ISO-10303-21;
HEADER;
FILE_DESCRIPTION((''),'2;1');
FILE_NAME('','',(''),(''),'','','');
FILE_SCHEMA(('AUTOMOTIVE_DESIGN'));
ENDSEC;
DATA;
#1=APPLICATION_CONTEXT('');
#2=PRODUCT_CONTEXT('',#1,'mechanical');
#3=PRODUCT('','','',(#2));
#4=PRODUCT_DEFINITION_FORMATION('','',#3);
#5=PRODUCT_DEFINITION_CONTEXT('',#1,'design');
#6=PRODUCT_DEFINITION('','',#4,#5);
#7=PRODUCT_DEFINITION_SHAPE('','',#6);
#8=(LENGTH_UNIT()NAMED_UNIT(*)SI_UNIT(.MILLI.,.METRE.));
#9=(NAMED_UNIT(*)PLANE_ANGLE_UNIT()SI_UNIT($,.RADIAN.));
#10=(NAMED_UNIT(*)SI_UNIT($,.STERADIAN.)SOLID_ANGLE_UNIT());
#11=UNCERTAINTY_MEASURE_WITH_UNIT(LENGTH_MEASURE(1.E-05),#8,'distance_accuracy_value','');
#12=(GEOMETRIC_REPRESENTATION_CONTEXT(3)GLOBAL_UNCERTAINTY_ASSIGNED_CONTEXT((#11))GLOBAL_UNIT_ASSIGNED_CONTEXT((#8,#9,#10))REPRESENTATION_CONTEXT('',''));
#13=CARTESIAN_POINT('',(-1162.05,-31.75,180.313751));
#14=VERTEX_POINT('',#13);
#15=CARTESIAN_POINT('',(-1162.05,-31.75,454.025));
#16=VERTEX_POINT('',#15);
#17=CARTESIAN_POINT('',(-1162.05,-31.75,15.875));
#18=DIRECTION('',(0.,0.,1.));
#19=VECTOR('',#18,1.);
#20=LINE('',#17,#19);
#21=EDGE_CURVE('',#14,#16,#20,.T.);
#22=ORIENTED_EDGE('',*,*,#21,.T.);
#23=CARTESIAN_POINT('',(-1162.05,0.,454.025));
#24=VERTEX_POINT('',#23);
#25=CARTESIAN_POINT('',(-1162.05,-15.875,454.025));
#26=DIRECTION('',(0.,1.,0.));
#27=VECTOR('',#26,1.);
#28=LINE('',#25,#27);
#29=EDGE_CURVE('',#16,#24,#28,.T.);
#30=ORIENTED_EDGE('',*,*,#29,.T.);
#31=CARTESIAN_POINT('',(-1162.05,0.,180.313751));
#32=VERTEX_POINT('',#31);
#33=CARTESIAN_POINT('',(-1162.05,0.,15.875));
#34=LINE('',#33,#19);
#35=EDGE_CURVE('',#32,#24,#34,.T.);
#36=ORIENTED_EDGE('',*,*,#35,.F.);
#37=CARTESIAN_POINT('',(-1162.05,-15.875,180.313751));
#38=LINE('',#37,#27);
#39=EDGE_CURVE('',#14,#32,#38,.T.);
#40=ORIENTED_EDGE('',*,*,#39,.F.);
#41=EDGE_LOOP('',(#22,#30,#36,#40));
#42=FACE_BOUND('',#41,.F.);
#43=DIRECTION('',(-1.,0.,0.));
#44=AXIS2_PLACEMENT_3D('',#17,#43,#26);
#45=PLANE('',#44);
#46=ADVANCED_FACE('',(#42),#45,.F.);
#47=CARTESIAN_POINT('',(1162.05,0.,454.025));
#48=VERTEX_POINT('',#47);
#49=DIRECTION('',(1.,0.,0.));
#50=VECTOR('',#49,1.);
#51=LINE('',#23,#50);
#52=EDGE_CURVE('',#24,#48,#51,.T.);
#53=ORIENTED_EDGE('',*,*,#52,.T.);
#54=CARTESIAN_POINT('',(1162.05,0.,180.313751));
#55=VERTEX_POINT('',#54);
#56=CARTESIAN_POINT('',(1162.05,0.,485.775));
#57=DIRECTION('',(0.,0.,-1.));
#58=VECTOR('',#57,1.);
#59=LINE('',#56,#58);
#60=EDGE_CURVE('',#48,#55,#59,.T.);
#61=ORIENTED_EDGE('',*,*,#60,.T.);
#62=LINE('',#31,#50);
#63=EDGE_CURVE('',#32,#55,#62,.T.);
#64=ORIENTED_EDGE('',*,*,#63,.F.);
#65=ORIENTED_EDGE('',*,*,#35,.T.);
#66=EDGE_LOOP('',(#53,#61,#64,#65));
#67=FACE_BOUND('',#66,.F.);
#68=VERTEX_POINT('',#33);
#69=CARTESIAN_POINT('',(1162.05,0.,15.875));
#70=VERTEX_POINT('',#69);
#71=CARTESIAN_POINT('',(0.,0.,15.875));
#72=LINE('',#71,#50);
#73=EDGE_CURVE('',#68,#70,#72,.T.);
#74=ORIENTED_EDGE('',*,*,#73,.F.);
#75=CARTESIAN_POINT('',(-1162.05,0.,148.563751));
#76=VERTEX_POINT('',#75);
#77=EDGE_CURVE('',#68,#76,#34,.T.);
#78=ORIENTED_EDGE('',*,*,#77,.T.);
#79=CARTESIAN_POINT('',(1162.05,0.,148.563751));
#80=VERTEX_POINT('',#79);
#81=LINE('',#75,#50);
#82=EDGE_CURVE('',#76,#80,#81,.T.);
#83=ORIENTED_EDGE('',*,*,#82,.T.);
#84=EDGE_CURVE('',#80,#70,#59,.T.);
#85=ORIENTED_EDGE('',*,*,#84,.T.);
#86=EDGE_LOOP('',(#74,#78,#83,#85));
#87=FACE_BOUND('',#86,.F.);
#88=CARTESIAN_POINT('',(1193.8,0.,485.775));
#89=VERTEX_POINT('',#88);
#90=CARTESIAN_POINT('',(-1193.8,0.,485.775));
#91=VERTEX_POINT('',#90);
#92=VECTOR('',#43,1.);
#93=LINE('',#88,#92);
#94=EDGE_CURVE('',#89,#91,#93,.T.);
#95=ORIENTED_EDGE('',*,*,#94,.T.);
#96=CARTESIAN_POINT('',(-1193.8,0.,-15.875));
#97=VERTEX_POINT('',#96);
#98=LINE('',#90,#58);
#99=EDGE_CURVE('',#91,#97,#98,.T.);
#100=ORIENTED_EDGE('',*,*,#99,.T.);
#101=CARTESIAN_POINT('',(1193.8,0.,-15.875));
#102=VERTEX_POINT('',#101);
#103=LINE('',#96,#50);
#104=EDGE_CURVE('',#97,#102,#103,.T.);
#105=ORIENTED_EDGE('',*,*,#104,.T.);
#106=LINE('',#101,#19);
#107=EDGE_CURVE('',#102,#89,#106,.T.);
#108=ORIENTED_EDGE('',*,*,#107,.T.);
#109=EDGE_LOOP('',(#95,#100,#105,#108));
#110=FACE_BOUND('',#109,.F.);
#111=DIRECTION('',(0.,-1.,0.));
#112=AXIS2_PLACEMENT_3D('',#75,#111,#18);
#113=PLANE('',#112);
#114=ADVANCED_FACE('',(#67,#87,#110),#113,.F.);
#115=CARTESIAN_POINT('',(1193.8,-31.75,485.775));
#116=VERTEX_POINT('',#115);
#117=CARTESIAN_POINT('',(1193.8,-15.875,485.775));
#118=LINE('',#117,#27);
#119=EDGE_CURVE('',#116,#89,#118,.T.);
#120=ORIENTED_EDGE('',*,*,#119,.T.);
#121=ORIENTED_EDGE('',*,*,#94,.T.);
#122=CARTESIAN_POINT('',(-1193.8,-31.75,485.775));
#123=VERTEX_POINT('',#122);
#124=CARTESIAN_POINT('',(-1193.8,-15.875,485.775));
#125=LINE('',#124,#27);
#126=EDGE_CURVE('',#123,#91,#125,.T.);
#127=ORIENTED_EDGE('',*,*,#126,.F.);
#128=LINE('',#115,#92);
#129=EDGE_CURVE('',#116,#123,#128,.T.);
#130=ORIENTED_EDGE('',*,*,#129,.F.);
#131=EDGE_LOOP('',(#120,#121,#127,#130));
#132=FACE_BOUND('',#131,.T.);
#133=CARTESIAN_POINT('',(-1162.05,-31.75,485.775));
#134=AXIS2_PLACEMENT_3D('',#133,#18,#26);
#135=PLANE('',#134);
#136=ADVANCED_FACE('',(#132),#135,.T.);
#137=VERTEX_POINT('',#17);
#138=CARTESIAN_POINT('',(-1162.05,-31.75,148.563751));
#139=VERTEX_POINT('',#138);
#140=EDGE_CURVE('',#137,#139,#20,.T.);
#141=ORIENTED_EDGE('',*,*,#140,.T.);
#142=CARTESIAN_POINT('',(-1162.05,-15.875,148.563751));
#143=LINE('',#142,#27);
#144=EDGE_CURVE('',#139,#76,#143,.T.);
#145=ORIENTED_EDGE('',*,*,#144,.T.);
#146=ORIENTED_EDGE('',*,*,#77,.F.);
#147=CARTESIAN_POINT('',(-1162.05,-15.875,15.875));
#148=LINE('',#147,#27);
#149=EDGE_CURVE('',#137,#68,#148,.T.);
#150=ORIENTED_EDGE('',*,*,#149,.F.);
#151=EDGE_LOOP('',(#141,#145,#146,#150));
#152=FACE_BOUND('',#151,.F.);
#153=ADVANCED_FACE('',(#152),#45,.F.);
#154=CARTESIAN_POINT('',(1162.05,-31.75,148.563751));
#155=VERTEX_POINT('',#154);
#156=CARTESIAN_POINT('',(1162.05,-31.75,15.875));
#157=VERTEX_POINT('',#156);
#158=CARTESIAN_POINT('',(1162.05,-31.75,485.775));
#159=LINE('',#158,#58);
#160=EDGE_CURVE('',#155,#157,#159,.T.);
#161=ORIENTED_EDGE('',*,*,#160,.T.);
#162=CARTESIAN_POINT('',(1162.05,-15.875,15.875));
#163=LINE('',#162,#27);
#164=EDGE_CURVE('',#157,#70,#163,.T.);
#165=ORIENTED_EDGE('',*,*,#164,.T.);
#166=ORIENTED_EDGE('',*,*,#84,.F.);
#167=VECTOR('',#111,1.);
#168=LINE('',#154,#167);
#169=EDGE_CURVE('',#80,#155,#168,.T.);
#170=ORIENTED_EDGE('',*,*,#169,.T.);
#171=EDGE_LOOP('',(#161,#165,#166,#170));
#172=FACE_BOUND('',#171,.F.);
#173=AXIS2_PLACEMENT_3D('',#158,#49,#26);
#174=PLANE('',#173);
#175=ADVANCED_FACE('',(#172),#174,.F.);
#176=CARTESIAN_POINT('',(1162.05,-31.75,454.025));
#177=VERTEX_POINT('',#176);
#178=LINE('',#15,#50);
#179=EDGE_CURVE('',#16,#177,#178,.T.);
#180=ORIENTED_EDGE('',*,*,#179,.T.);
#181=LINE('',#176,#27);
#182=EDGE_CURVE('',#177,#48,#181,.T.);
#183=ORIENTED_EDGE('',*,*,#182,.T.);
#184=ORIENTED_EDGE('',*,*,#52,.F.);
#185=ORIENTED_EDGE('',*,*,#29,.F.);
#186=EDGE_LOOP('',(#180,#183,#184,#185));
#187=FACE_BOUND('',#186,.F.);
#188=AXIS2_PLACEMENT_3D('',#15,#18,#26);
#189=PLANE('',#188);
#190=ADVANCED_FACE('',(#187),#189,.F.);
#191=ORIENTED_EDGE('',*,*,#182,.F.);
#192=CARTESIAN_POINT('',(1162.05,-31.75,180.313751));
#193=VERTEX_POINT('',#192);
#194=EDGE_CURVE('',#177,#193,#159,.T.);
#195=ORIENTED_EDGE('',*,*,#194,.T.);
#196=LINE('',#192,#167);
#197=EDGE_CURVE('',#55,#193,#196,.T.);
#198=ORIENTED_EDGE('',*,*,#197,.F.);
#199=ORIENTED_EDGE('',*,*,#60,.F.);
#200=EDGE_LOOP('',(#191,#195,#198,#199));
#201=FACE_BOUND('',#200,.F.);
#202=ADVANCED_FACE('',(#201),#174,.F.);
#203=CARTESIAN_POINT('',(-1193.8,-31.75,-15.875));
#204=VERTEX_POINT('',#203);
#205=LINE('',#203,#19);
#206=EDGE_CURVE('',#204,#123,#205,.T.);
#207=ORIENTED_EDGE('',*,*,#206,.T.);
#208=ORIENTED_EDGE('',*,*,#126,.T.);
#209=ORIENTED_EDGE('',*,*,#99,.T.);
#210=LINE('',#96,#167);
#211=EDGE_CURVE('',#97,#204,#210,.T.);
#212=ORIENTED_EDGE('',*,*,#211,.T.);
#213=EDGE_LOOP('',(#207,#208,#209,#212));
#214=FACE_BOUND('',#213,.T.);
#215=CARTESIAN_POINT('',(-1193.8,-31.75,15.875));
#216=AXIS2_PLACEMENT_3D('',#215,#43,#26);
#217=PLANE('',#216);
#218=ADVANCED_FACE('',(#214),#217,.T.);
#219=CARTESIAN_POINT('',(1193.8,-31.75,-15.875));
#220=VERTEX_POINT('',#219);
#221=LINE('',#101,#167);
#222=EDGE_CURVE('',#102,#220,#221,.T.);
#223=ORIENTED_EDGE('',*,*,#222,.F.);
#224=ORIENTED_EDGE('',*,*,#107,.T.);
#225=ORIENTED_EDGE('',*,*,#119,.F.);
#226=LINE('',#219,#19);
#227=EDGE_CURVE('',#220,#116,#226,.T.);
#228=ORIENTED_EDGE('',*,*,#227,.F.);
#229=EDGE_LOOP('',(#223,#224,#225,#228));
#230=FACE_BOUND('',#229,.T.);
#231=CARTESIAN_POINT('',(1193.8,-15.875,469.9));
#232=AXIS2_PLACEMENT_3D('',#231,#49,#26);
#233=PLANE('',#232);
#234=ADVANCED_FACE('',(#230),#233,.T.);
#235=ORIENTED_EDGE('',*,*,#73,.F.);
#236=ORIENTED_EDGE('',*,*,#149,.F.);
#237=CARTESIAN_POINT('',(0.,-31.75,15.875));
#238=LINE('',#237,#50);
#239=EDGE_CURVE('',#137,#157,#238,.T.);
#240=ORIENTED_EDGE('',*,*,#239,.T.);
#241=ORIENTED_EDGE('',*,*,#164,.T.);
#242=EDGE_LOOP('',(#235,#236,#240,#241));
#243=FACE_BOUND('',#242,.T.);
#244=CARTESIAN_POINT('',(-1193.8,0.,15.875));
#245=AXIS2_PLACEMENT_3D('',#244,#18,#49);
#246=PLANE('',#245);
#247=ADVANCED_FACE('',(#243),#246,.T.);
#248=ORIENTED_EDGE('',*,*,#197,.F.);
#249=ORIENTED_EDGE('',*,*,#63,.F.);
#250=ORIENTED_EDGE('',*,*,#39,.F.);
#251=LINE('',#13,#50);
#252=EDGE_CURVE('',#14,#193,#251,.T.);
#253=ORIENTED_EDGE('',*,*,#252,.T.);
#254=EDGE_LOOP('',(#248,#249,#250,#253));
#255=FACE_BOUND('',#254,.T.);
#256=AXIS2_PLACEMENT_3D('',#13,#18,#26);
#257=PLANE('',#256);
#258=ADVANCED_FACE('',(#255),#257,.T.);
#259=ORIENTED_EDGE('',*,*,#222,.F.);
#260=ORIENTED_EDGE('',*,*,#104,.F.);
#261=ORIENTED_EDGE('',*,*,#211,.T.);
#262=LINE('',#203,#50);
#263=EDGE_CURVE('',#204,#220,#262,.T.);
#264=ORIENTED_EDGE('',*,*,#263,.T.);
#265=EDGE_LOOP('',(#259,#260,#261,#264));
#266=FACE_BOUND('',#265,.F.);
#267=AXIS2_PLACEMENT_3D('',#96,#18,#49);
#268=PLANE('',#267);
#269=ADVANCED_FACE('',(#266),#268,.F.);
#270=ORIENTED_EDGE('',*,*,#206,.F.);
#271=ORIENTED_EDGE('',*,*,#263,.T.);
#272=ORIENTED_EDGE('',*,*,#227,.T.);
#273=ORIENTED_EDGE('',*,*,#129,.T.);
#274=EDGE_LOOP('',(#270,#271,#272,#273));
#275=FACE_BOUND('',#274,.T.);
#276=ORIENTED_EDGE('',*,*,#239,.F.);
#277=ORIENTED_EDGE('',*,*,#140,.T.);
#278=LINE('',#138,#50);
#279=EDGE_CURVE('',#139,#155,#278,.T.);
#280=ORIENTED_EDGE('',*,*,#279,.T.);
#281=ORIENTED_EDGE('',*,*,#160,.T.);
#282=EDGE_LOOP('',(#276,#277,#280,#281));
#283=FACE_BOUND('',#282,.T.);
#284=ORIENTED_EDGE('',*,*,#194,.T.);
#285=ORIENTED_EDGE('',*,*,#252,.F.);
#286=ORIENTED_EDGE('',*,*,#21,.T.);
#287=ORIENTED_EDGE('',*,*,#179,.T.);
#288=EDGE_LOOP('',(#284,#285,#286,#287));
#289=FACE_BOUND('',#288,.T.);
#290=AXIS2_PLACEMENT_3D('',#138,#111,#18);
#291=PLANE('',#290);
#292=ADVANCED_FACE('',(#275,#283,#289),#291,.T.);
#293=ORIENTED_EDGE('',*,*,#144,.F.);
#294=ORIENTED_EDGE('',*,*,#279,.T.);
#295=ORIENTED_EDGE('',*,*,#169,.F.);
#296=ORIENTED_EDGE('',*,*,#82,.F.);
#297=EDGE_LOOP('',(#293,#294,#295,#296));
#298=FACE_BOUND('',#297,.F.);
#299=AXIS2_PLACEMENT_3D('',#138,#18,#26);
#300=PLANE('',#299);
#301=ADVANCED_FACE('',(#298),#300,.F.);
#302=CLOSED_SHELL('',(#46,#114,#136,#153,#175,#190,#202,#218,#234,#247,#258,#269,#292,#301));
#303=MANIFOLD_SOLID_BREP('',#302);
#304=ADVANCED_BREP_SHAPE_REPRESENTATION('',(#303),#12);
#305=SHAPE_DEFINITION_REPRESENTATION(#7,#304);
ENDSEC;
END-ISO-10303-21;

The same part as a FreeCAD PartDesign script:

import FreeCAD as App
import Part
import Sketcher

V = App.Vector
Q = App.Units.Quantity

doc = App.newDocument("Part")
body = doc.addObject("PartDesign::Body", "Body")

# Sketch on XZ plane
sketch1 = doc.addObject("Sketcher::SketchObject", "Sketch")
body.addObject(sketch1)
sketch1.AttachmentSupport = (doc.XZ_Plane, [""])
sketch1.MapMode = "FlatFace"
sketch1.addGeometry([
    Part.LineSegment(V(-1194, 16, 0), V(-1194, -16, 0)),
    Part.LineSegment(V(-1194, -16, 0), V(1194, -16, 0)),
    Part.LineSegment(V(1194, -16, 0), V(1194, 16, 0)),
    Part.LineSegment(V(1194, 16, 0), V(-1194, 16, 0)),
], False)
sketch1.addConstraint([
    Sketcher.Constraint("Coincident", 0, 2, 1, 1),
    Sketcher.Constraint("Coincident", 1, 2, 2, 1),
    Sketcher.Constraint("Coincident", 2, 2, 3, 1),
    Sketcher.Constraint("Coincident", 3, 2, 0, 1),
    Sketcher.Constraint("Vertical", 0),
    Sketcher.Constraint("Horizontal", 1),
    Sketcher.Constraint("Vertical", 2),
    Sketcher.Constraint("Horizontal", 3),
    Sketcher.Constraint("Symmetric", 0, 2, 2, 2, -1, 1),
    Sketcher.Constraint("DistanceX", 1, 1, 1, 2, Q("94 in")),
    Sketcher.Constraint("DistanceY", 0, 2, 0, 1, Q("1.25 in")),
])
pad1 = doc.addObject("PartDesign::Pad", "Pad")
body.addObject(pad1)
pad1.Profile = sketch1
pad1.Length = Q("1.25 in")

# Sketch on XY plane
sketch2 = doc.addObject("Sketcher::SketchObject", "Sketch001")
body.addObject(sketch2)
sketch2.AttachmentSupport = (doc.XY_Plane, [""])
sketch2.MapMode = "FlatFace"
sketch2.AttachmentOffset = App.Placement(V(0, 0, 0.625 * 25.4), App.Rotation())
sketch2.addGeometry([
    Part.LineSegment(V(-1194, 0, 0), V(-1194, -32, 0)),
    Part.LineSegment(V(-1194, -32, 0), V(-1162, -32, 0)),
    Part.LineSegment(V(-1162, -32, 0), V(-1162, 0, 0)),
    Part.LineSegment(V(-1162, 0, 0), V(-1194, 0, 0)),
], False)
sketch2.addConstraint([
    Sketcher.Constraint("Coincident", 0, 2, 1, 1),
    Sketcher.Constraint("Coincident", 1, 2, 2, 1),
    Sketcher.Constraint("Coincident", 2, 2, 3, 1),
    Sketcher.Constraint("Coincident", 3, 2, 0, 1),
    Sketcher.Constraint("Vertical", 0),
    Sketcher.Constraint("Horizontal", 1),
    Sketcher.Constraint("Vertical", 2),
    Sketcher.Constraint("Horizontal", 3),
    Sketcher.Constraint("PointOnObject", 2, 2, -1),
    Sketcher.Constraint("Equal", 3, 0),
    Sketcher.Constraint("DistanceX", 0, 2, -1, 1, Q("47 in")),
    Sketcher.Constraint("DistanceX", 1, 1, 1, 2, Q("1.25 in")),
])
pad2 = doc.addObject("PartDesign::Pad", "Pad001")
body.addObject(pad2)
pad2.Profile = sketch2
pad2.Length = Q("18.5 in")

# Sketch on YZ plane
sketch3 = doc.addObject("Sketcher::SketchObject", "Sketch002")
body.addObject(sketch3)
sketch3.AttachmentSupport = (doc.YZ_Plane, [""])
sketch3.MapMode = "FlatFace"
sketch3.AttachmentOffset = App.Placement(V(0, 0, -45.75 * 25.4), App.Rotation())
sketch3.addGeometry([
    Part.LineSegment(V(-32, 486, 0), V(-32, 454, 0)),
    Part.LineSegment(V(-32, 454, 0), V(0, 454, 0)),
    Part.LineSegment(V(0, 454, 0), V(0, 486, 0)),
    Part.LineSegment(V(0, 486, 0), V(-32, 486, 0)),
], False)
sketch3.addConstraint([
    Sketcher.Constraint("Coincident", 0, 2, 1, 1),
    Sketcher.Constraint("Coincident", 1, 2, 2, 1),
    Sketcher.Constraint("Coincident", 2, 2, 3, 1),
    Sketcher.Constraint("Coincident", 3, 2, 0, 1),
    Sketcher.Constraint("Vertical", 0),
    Sketcher.Constraint("Horizontal", 1),
    Sketcher.Constraint("Vertical", 2),
    Sketcher.Constraint("Horizontal", 3),
    Sketcher.Constraint("PointOnObject", 1, 2, -2),
    Sketcher.Constraint("Equal", 3, 0),
    Sketcher.Constraint("DistanceX", 1, 1, 1, 2, Q("1.25 in")),
    Sketcher.Constraint("DistanceY", -1, 1, 0, 2, Q("17.875 in")),
])
pad3 = doc.addObject("PartDesign::Pad", "Pad002")
body.addObject(pad3)
pad3.Profile = sketch3
pad3.Length = Q("92.75 in")

# Sketch on XY plane
sketch4 = doc.addObject("Sketcher::SketchObject", "Sketch003")
body.addObject(sketch4)
sketch4.AttachmentSupport = (doc.XY_Plane, [""])
sketch4.MapMode = "FlatFace"
sketch4.AttachmentOffset = App.Placement(V(0, 0, 19.125 * 25.4), App.Rotation())
sketch4.addGeometry([
    Part.LineSegment(V(1162, 0, 0), V(1162, -32, 0)),
    Part.LineSegment(V(1162, -32, 0), V(1194, -32, 0)),
    Part.LineSegment(V(1194, -32, 0), V(1194, 0, 0)),
    Part.LineSegment(V(1194, 0, 0), V(1162, 0, 0)),
], False)
sketch4.addConstraint([
    Sketcher.Constraint("Coincident", 0, 2, 1, 1),
    Sketcher.Constraint("Coincident", 1, 2, 2, 1),
    Sketcher.Constraint("Coincident", 2, 2, 3, 1),
    Sketcher.Constraint("Coincident", 3, 2, 0, 1),
    Sketcher.Constraint("Vertical", 0),
    Sketcher.Constraint("Horizontal", 1),
    Sketcher.Constraint("Vertical", 2),
    Sketcher.Constraint("Horizontal", 3),
    Sketcher.Constraint("PointOnObject", 2, 2, -1),
    Sketcher.Constraint("Equal", 3, 0),
    Sketcher.Constraint("DistanceX", -1, 1, 1, 2, Q("47 in")),
    Sketcher.Constraint("DistanceX", 1, 1, 1, 2, Q("1.25 in")),
])
pad4 = doc.addObject("PartDesign::Pad", "Pad003")
body.addObject(pad4)
pad4.Profile = sketch4
pad4.Length = Q("19.75 in")
pad4.Reversed = True

# Sketch on YZ plane
sketch5 = doc.addObject("Sketcher::SketchObject", "Sketch004")
body.addObject(sketch5)
sketch5.AttachmentSupport = (doc.YZ_Plane, [""])
sketch5.MapMode = "FlatFace"
sketch5.AttachmentOffset = App.Placement(V(0, 0, -45.75 * 25.4), App.Rotation())
sketch5.addGeometry([
    Part.LineSegment(V(-32, 180, 0), V(-32, 149, 0)),
    Part.LineSegment(V(-32, 149, 0), V(0, 149, 0)),
    Part.LineSegment(V(0, 149, 0), V(0, 180, 0)),
    Part.LineSegment(V(0, 180, 0), V(-32, 180, 0)),
], False)
sketch5.addConstraint([
    Sketcher.Constraint("Coincident", 0, 2, 1, 1),
    Sketcher.Constraint("Coincident", 1, 2, 2, 1),
    Sketcher.Constraint("Coincident", 2, 2, 3, 1),
    Sketcher.Constraint("Coincident", 3, 2, 0, 1),
    Sketcher.Constraint("Vertical", 0),
    Sketcher.Constraint("Horizontal", 1),
    Sketcher.Constraint("Vertical", 2),
    Sketcher.Constraint("Horizontal", 3),
    Sketcher.Constraint("PointOnObject", 1, 2, -2),
    Sketcher.Constraint("Equal", 3, 0),
    Sketcher.Constraint("DistanceX", 1, 1, 1, 2, Q("1.25 in")),
    Sketcher.Constraint("DistanceY", -1, 1, 0, 2, 148.563751),
])
pad5 = doc.addObject("PartDesign::Pad", "Pad004")
body.addObject(pad5)
pad5.Profile = sketch5
pad5.Length = Q("92 in")

doc.recompute()
